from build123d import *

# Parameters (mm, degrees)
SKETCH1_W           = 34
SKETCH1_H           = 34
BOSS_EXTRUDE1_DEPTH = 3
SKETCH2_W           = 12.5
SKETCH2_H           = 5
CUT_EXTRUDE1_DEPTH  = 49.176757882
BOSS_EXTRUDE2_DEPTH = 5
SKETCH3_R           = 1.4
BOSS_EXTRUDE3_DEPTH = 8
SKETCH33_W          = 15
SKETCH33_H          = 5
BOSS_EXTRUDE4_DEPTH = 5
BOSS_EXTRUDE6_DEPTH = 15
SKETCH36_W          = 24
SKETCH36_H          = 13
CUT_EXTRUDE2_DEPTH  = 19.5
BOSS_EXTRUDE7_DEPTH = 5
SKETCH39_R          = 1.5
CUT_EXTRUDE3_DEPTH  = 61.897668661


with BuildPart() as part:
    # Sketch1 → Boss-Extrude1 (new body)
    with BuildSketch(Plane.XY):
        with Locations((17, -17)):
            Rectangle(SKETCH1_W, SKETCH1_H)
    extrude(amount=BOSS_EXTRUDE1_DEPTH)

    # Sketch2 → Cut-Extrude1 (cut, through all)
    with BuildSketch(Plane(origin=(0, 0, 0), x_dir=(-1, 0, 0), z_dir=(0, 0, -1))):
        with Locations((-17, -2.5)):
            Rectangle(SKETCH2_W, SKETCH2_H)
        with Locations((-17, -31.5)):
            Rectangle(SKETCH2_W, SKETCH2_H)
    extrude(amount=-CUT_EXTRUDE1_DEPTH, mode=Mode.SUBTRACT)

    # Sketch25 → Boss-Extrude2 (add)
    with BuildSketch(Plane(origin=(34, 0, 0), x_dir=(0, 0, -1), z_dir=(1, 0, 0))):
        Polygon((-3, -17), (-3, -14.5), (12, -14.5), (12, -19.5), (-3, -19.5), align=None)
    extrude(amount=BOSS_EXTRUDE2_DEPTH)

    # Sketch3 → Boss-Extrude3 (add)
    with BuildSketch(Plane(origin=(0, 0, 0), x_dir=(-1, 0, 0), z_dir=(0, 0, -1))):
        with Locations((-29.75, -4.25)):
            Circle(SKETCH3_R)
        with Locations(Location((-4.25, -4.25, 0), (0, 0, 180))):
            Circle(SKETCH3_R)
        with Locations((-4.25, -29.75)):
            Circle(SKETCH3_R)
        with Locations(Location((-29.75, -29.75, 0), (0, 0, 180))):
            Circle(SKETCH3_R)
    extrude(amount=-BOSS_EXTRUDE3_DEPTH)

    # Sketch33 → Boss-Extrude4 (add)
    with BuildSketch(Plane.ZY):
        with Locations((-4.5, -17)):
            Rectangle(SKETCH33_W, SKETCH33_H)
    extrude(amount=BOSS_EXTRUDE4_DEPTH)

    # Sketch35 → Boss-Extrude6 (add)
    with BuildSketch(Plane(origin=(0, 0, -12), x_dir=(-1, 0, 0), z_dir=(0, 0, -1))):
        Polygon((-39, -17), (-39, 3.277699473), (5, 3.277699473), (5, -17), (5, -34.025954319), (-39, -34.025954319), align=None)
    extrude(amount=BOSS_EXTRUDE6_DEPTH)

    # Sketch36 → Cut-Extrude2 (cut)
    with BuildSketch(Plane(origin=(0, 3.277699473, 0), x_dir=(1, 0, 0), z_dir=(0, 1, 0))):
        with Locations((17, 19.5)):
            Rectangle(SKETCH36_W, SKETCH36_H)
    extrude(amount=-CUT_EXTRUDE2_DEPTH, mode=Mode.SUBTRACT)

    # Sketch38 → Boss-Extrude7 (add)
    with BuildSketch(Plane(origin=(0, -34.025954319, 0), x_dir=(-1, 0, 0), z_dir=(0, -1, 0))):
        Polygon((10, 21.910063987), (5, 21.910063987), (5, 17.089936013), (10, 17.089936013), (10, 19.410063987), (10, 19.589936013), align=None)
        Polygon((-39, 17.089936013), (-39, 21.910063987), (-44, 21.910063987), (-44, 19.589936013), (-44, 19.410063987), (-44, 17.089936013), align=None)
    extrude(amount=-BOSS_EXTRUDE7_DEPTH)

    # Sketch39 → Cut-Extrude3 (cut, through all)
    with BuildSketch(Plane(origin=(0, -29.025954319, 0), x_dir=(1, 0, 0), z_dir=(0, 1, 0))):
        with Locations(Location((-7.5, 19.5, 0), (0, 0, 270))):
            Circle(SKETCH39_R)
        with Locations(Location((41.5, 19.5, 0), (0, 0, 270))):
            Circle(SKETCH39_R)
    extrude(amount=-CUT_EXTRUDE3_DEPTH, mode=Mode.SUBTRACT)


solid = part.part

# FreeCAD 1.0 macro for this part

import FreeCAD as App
import Part
import Sketcher
Q = App.Units.Quantity


def add_polygon(sketch, points):
    """Adds a closed chain of lines whose ends are joined by coincident constraints."""
    first, n = sketch.GeometryCount, len(points)
    for a, b in zip(points, points[1:] + points[:1]):
        sketch.addGeometry(Part.LineSegment(App.Vector(*a, 0), App.Vector(*b, 0)), False)
    for i in range(n):
        sketch.addConstraint(Sketcher.Constraint("Coincident", first + i, 2, first + (i + 1) % n, 1))

doc = App.newDocument("Part")
body = doc.addObject("PartDesign::Body", "Body")

# Sketch on XY plane
sketch1 = body.newObject("Sketcher::SketchObject", "Sketch")
sketch1.AttachmentSupport = (doc.getObject("XY_Plane"), [""])
sketch1.MapMode = "FlatFace"
add_polygon(sketch1, [(0, 0), (0, -34), (34, -34), (34, 0)])  # lines 0-3
sketch1.addConstraint([
    Sketcher.Constraint("Vertical", 0),
    Sketcher.Constraint("Horizontal", 1),
    Sketcher.Constraint("Vertical", 2),
    Sketcher.Constraint("Horizontal", 3),
    Sketcher.Constraint("Coincident", 3, 2, -1, 1),
    Sketcher.Constraint("Equal", 3, 0),
    Sketcher.Constraint("DistanceX", 1, 1, 1, 2, Q("34 mm")),
])
pad1 = body.newObject("PartDesign::Pad", "Pad")
pad1.Profile = sketch1
pad1.Length = 3

# Sketch on XY plane
sketch2 = body.newObject("Sketcher::SketchObject", "Sketch001")
sketch2.AttachmentSupport = (doc.getObject("XY_Plane"), [""])
sketch2.MapMode = "FlatFace"
add_polygon(sketch2, [(23, 0), (23, -5), (11, -5), (11, 0)])  # lines 0-3
add_polygon(sketch2, [(23, -29), (23, -34), (11, -34), (11, -29)])  # lines 4-7
sketch2.addConstraint([
    Sketcher.Constraint("Vertical", 0),
    Sketcher.Constraint("Horizontal", 1),
    Sketcher.Constraint("Vertical", 2),
    Sketcher.Constraint("Horizontal", 3),
    Sketcher.Constraint("Vertical", 4),
    Sketcher.Constraint("Horizontal", 5),
    Sketcher.Constraint("Vertical", 6),
    Sketcher.Constraint("Horizontal", 7),
    Sketcher.Constraint("PointOnObject", 2, 2, -1),
    Sketcher.Constraint("Vertical", 3, 2, 4, 2),
    Sketcher.Constraint("Vertical", 2, 2, 5, 2),
    Sketcher.Constraint("Equal", 2, 4),
    Sketcher.Constraint("DistanceY", 0, 2, 0, 1, Q("5 mm")),
    Sketcher.Constraint("DistanceX", 1, 2, 1, 1, Q("12.5 mm")),
    Sketcher.Constraint("DistanceY", 4, 2, -1, 1, Q("34 mm")),
    Sketcher.Constraint("DistanceX", -1, 1, 0, 2, Q("23.25 mm")),
])
pocket1 = body.newObject("PartDesign::Pocket", "Pocket")
pocket1.Profile = sketch2
pocket1.Type = "ThroughAll"
pocket1.Reversed = True

# Sketch on YZ plane
sketch3 = body.newObject("Sketcher::SketchObject", "Sketch002")
sketch3.AttachmentSupport = (doc.getObject("YZ_Plane"), [""])
sketch3.MapMode = "FlatFace"
sketch3.AttachmentOffset = App.Placement(App.Vector(0, 0, 34), App.Rotation())
add_polygon(sketch3, [(-14, 3), (-20, 3), (-20, -12), (-14, -12)])  # lines 0-3
sketch3.addConstraint([
    Sketcher.Constraint("Horizontal", 0),
    Sketcher.Constraint("Vertical", 1),
    Sketcher.Constraint("Horizontal", 2),
    Sketcher.Constraint("Vertical", 3),
    Sketcher.Constraint("DistanceX", 0, 2, 0, 1, Q("5 mm")),
    Sketcher.Constraint("DistanceY", 1, 2, 1, 1, Q("15 mm")),
    Sketcher.Constraint("DistanceY", -1, 1, 0, 2, Q("3 mm")),
    Sketcher.Constraint("DistanceX", 0, 2, -1, 1, Q("19.5 mm")),
])
pad2 = body.newObject("PartDesign::Pad", "Pad001")
pad2.Profile = sketch3
pad2.Length = 5

# Sketch on XY plane
sketch4 = body.newObject("Sketcher::SketchObject", "Sketch003")
sketch4.AttachmentSupport = (doc.getObject("XY_Plane"), [""])
sketch4.MapMode = "FlatFace"
sketch4.addGeometry([
    Part.Circle(App.Vector(29.8, -4.2, 0), App.Vector(0, 0, 1), 1.4),
    Part.Circle(App.Vector(4.2, -4.2, 0), App.Vector(0, 0, 1), 1.4),
    Part.Circle(App.Vector(4.2, -29.8, 0), App.Vector(0, 0, 1), 1.4),
    Part.Circle(App.Vector(29.8, -29.8, 0), App.Vector(0, 0, 1), 1.4),
], False)
sketch4.addConstraint([
    Sketcher.Constraint("Equal", 0, 1),
    Sketcher.Constraint("Equal", 1, 2),
    Sketcher.Constraint("Equal", 2, 3),
    Sketcher.Constraint("Horizontal", 0, 3, 1, 3),
    Sketcher.Constraint("Horizontal", 2, 3, 3, 3),
    Sketcher.Constraint("Vertical", 1, 3, 2, 3),
    Sketcher.Constraint("Vertical", 0, 3, 3, 3),
    Sketcher.Constraint("Diameter", 0, Q("2.8 mm")),
    Sketcher.Constraint("DistanceX", 1, 3, 0, 3, Q("25.5 mm")),
    Sketcher.Constraint("DistanceY", 2, 3, 1, 3, Q("25.5 mm")),
    Sketcher.Constraint("DistanceX", -1, 1, 0, 3, Q("29.75 mm")),
    Sketcher.Constraint("DistanceY", 0, 3, -1, 1, Q("4.25 mm")),
])
pad3 = body.newObject("PartDesign::Pad", "Pad002")
pad3.Profile = sketch4
pad3.Length = 8

# Sketch on YZ plane
sketch5 = body.newObject("Sketcher::SketchObject", "Sketch004")
sketch5.AttachmentSupport = (doc.getObject("YZ_Plane"), [""])
sketch5.MapMode = "FlatFace"
add_polygon(sketch5, [(-14, -12), (-20, -12), (-20, 3), (-14, 3)])  # lines 0-3
sketch5.addConstraint([
    Sketcher.Constraint("Horizontal", 0),
    Sketcher.Constraint("Vertical", 1),
    Sketcher.Constraint("Horizontal", 2),
    Sketcher.Constraint("Vertical", 3),
    Sketcher.Constraint("DistanceX", 0, 2, 0, 1, Q("5 mm")),
    Sketcher.Constraint("DistanceY", 1, 1, 1, 2, Q("15 mm")),
    Sketcher.Constraint("DistanceY", 0, 2, -1, 1, Q("12 mm")),
    Sketcher.Constraint("DistanceX", 0, 2, -1, 1, Q("19.5 mm")),
])
pad4 = body.newObject("PartDesign::Pad", "Pad003")
pad4.Profile = sketch5
pad4.Length = 5
pad4.Reversed = True

# Sketch on XY plane
sketch6 = body.newObject("Sketcher::SketchObject", "Sketch005")
sketch6.AttachmentSupport = (doc.getObject("XY_Plane"), [""])
sketch6.MapMode = "FlatFace"
sketch6.AttachmentOffset = App.Placement(App.Vector(0, 0, -12), App.Rotation())
add_polygon(sketch6, [(39, 3), (39, -34), (-5, -34), (-5, 3)])  # lines 0-3
sketch6.addConstraint([
    Sketcher.Constraint("Vertical", 0),
    Sketcher.Constraint("Horizontal", 1),
    Sketcher.Constraint("Vertical", 2),
    Sketcher.Constraint("Horizontal", 3),
    Sketcher.Constraint("DistanceX", 1, 2, 1, 1, Q("44 mm")),
    Sketcher.Constraint("DistanceX", -1, 1, 0, 2, Q("39 mm")),
    Sketcher.Constraint("DistanceY", -1, 1, 2, 2, Q("3.277699 mm")),
    Sketcher.Constraint("DistanceY", 0, 2, 0, 1, Q("37.303654 mm")),
])
pad5 = body.newObject("PartDesign::Pad", "Pad004")
pad5.Profile = sketch6
pad5.Length = 15
pad5.Reversed = True

# Sketch on XZ plane
sketch7 = body.newObject("Sketcher::SketchObject", "Sketch006")
sketch7.AttachmentSupport = (doc.getObject("XZ_Plane"), [""])
sketch7.MapMode = "FlatFace"
sketch7.AttachmentOffset = App.Placement(App.Vector(0, 0, -3.277699), App.Rotation())
add_polygon(sketch7, [(5, -26), (5, -13), (29, -13), (29, -26)])  # lines 0-3
sketch7.addConstraint([
    Sketcher.Constraint("Vertical", 0),
    Sketcher.Constraint("Horizontal", 1),
    Sketcher.Constraint("Vertical", 2),
    Sketcher.Constraint("Horizontal", 3),
    Sketcher.Constraint("DistanceX", 1, 1, 1, 2, Q("24 mm")),
    Sketcher.Constraint("DistanceY", 0, 1, 0, 2, Q("13 mm")),
    Sketcher.Constraint("DistanceX", -1, 1, 0, 2, Q("5 mm")),
    Sketcher.Constraint("DistanceY", 0, 2, -1, 1, Q("13 mm")),
])
pocket2 = body.newObject("PartDesign::Pocket", "Pocket001")
pocket2.Profile = sketch7
pocket2.Length = 19.5
pocket2.Reversed = True

# Sketch on XZ plane
sketch8 = body.newObject("Sketcher::SketchObject", "Sketch007")
sketch8.AttachmentSupport = (doc.getObject("XZ_Plane"), [""])
sketch8.MapMode = "FlatFace"
sketch8.AttachmentOffset = App.Placement(App.Vector(0, 0, 34.025954), App.Rotation())
add_polygon(sketch8, [(-10, -21.9), (-5, -21.9), (-5, -17.1), (-10, -17.1)])  # lines 0-3
add_polygon(sketch8, [(39, -17.1), (39, -21.9), (44, -21.9), (44, -17.1)])  # lines 4-7
sketch8.addConstraint([
    Sketcher.Constraint("Horizontal", 0),
    Sketcher.Constraint("Vertical", 1),
    Sketcher.Constraint("Horizontal", 2),
    Sketcher.Constraint("Vertical", 3),
    Sketcher.Constraint("Vertical", 4),
    Sketcher.Constraint("Horizontal", 5),
    Sketcher.Constraint("Vertical", 6),
    Sketcher.Constraint("Horizontal", 7),
    Sketcher.Constraint("Horizontal", 3, 2, 4, 2),
    Sketcher.Constraint("Horizontal", 2, 2, 6, 2),
    Sketcher.Constraint("Equal", 2, 5),
    Sketcher.Constraint("DistanceX", 0, 1, 0, 2, Q("5 mm")),
    Sketcher.Constraint("DistanceX", 0, 2, -1, 1, Q("5 mm")),
    Sketcher.Constraint("DistanceX", -1, 1, 4, 2, Q("39 mm")),
    Sketcher.Constraint("DistanceY", 1, 1, 1, 2, Q("4.820128 mm")),
    Sketcher.Constraint("DistanceY", 0, 2, -1, 1, Q("21.910064 mm")),
])
pad6 = body.newObject("PartDesign::Pad", "Pad005")
pad6.Profile = sketch8
pad6.Length = 5
pad6.Reversed = True

# Sketch on XZ plane
sketch9 = body.newObject("Sketcher::SketchObject", "Sketch008")
sketch9.AttachmentSupport = (doc.getObject("XZ_Plane"), [""])
sketch9.MapMode = "FlatFace"
sketch9.AttachmentOffset = App.Placement(App.Vector(0, 0, 29.025954), App.Rotation())
sketch9.addGeometry([
    Part.Circle(App.Vector(-7.5, -19.5, 0), App.Vector(0, 0, 1), 1.5),
    Part.Circle(App.Vector(41.5, -19.5, 0), App.Vector(0, 0, 1), 1.5),
], False)
sketch9.addConstraint([
    Sketcher.Constraint("Equal", 0, 1),
    Sketcher.Constraint("Horizontal", 0, 3, 1, 3),
    Sketcher.Constraint("Diameter", 0, Q("3 mm")),
    Sketcher.Constraint("DistanceX", 0, 3, 1, 3, Q("49 mm")),
    Sketcher.Constraint("DistanceX", 0, 3, -1, 1, Q("7.5 mm")),
    Sketcher.Constraint("DistanceY", 0, 3, -1, 1, Q("19.5 mm")),
])
pocket3 = body.newObject("PartDesign::Pocket", "Pocket002")
pocket3.Profile = sketch9
pocket3.Type = "ThroughAll"
pocket3.Reversed = True

doc.recompute()
